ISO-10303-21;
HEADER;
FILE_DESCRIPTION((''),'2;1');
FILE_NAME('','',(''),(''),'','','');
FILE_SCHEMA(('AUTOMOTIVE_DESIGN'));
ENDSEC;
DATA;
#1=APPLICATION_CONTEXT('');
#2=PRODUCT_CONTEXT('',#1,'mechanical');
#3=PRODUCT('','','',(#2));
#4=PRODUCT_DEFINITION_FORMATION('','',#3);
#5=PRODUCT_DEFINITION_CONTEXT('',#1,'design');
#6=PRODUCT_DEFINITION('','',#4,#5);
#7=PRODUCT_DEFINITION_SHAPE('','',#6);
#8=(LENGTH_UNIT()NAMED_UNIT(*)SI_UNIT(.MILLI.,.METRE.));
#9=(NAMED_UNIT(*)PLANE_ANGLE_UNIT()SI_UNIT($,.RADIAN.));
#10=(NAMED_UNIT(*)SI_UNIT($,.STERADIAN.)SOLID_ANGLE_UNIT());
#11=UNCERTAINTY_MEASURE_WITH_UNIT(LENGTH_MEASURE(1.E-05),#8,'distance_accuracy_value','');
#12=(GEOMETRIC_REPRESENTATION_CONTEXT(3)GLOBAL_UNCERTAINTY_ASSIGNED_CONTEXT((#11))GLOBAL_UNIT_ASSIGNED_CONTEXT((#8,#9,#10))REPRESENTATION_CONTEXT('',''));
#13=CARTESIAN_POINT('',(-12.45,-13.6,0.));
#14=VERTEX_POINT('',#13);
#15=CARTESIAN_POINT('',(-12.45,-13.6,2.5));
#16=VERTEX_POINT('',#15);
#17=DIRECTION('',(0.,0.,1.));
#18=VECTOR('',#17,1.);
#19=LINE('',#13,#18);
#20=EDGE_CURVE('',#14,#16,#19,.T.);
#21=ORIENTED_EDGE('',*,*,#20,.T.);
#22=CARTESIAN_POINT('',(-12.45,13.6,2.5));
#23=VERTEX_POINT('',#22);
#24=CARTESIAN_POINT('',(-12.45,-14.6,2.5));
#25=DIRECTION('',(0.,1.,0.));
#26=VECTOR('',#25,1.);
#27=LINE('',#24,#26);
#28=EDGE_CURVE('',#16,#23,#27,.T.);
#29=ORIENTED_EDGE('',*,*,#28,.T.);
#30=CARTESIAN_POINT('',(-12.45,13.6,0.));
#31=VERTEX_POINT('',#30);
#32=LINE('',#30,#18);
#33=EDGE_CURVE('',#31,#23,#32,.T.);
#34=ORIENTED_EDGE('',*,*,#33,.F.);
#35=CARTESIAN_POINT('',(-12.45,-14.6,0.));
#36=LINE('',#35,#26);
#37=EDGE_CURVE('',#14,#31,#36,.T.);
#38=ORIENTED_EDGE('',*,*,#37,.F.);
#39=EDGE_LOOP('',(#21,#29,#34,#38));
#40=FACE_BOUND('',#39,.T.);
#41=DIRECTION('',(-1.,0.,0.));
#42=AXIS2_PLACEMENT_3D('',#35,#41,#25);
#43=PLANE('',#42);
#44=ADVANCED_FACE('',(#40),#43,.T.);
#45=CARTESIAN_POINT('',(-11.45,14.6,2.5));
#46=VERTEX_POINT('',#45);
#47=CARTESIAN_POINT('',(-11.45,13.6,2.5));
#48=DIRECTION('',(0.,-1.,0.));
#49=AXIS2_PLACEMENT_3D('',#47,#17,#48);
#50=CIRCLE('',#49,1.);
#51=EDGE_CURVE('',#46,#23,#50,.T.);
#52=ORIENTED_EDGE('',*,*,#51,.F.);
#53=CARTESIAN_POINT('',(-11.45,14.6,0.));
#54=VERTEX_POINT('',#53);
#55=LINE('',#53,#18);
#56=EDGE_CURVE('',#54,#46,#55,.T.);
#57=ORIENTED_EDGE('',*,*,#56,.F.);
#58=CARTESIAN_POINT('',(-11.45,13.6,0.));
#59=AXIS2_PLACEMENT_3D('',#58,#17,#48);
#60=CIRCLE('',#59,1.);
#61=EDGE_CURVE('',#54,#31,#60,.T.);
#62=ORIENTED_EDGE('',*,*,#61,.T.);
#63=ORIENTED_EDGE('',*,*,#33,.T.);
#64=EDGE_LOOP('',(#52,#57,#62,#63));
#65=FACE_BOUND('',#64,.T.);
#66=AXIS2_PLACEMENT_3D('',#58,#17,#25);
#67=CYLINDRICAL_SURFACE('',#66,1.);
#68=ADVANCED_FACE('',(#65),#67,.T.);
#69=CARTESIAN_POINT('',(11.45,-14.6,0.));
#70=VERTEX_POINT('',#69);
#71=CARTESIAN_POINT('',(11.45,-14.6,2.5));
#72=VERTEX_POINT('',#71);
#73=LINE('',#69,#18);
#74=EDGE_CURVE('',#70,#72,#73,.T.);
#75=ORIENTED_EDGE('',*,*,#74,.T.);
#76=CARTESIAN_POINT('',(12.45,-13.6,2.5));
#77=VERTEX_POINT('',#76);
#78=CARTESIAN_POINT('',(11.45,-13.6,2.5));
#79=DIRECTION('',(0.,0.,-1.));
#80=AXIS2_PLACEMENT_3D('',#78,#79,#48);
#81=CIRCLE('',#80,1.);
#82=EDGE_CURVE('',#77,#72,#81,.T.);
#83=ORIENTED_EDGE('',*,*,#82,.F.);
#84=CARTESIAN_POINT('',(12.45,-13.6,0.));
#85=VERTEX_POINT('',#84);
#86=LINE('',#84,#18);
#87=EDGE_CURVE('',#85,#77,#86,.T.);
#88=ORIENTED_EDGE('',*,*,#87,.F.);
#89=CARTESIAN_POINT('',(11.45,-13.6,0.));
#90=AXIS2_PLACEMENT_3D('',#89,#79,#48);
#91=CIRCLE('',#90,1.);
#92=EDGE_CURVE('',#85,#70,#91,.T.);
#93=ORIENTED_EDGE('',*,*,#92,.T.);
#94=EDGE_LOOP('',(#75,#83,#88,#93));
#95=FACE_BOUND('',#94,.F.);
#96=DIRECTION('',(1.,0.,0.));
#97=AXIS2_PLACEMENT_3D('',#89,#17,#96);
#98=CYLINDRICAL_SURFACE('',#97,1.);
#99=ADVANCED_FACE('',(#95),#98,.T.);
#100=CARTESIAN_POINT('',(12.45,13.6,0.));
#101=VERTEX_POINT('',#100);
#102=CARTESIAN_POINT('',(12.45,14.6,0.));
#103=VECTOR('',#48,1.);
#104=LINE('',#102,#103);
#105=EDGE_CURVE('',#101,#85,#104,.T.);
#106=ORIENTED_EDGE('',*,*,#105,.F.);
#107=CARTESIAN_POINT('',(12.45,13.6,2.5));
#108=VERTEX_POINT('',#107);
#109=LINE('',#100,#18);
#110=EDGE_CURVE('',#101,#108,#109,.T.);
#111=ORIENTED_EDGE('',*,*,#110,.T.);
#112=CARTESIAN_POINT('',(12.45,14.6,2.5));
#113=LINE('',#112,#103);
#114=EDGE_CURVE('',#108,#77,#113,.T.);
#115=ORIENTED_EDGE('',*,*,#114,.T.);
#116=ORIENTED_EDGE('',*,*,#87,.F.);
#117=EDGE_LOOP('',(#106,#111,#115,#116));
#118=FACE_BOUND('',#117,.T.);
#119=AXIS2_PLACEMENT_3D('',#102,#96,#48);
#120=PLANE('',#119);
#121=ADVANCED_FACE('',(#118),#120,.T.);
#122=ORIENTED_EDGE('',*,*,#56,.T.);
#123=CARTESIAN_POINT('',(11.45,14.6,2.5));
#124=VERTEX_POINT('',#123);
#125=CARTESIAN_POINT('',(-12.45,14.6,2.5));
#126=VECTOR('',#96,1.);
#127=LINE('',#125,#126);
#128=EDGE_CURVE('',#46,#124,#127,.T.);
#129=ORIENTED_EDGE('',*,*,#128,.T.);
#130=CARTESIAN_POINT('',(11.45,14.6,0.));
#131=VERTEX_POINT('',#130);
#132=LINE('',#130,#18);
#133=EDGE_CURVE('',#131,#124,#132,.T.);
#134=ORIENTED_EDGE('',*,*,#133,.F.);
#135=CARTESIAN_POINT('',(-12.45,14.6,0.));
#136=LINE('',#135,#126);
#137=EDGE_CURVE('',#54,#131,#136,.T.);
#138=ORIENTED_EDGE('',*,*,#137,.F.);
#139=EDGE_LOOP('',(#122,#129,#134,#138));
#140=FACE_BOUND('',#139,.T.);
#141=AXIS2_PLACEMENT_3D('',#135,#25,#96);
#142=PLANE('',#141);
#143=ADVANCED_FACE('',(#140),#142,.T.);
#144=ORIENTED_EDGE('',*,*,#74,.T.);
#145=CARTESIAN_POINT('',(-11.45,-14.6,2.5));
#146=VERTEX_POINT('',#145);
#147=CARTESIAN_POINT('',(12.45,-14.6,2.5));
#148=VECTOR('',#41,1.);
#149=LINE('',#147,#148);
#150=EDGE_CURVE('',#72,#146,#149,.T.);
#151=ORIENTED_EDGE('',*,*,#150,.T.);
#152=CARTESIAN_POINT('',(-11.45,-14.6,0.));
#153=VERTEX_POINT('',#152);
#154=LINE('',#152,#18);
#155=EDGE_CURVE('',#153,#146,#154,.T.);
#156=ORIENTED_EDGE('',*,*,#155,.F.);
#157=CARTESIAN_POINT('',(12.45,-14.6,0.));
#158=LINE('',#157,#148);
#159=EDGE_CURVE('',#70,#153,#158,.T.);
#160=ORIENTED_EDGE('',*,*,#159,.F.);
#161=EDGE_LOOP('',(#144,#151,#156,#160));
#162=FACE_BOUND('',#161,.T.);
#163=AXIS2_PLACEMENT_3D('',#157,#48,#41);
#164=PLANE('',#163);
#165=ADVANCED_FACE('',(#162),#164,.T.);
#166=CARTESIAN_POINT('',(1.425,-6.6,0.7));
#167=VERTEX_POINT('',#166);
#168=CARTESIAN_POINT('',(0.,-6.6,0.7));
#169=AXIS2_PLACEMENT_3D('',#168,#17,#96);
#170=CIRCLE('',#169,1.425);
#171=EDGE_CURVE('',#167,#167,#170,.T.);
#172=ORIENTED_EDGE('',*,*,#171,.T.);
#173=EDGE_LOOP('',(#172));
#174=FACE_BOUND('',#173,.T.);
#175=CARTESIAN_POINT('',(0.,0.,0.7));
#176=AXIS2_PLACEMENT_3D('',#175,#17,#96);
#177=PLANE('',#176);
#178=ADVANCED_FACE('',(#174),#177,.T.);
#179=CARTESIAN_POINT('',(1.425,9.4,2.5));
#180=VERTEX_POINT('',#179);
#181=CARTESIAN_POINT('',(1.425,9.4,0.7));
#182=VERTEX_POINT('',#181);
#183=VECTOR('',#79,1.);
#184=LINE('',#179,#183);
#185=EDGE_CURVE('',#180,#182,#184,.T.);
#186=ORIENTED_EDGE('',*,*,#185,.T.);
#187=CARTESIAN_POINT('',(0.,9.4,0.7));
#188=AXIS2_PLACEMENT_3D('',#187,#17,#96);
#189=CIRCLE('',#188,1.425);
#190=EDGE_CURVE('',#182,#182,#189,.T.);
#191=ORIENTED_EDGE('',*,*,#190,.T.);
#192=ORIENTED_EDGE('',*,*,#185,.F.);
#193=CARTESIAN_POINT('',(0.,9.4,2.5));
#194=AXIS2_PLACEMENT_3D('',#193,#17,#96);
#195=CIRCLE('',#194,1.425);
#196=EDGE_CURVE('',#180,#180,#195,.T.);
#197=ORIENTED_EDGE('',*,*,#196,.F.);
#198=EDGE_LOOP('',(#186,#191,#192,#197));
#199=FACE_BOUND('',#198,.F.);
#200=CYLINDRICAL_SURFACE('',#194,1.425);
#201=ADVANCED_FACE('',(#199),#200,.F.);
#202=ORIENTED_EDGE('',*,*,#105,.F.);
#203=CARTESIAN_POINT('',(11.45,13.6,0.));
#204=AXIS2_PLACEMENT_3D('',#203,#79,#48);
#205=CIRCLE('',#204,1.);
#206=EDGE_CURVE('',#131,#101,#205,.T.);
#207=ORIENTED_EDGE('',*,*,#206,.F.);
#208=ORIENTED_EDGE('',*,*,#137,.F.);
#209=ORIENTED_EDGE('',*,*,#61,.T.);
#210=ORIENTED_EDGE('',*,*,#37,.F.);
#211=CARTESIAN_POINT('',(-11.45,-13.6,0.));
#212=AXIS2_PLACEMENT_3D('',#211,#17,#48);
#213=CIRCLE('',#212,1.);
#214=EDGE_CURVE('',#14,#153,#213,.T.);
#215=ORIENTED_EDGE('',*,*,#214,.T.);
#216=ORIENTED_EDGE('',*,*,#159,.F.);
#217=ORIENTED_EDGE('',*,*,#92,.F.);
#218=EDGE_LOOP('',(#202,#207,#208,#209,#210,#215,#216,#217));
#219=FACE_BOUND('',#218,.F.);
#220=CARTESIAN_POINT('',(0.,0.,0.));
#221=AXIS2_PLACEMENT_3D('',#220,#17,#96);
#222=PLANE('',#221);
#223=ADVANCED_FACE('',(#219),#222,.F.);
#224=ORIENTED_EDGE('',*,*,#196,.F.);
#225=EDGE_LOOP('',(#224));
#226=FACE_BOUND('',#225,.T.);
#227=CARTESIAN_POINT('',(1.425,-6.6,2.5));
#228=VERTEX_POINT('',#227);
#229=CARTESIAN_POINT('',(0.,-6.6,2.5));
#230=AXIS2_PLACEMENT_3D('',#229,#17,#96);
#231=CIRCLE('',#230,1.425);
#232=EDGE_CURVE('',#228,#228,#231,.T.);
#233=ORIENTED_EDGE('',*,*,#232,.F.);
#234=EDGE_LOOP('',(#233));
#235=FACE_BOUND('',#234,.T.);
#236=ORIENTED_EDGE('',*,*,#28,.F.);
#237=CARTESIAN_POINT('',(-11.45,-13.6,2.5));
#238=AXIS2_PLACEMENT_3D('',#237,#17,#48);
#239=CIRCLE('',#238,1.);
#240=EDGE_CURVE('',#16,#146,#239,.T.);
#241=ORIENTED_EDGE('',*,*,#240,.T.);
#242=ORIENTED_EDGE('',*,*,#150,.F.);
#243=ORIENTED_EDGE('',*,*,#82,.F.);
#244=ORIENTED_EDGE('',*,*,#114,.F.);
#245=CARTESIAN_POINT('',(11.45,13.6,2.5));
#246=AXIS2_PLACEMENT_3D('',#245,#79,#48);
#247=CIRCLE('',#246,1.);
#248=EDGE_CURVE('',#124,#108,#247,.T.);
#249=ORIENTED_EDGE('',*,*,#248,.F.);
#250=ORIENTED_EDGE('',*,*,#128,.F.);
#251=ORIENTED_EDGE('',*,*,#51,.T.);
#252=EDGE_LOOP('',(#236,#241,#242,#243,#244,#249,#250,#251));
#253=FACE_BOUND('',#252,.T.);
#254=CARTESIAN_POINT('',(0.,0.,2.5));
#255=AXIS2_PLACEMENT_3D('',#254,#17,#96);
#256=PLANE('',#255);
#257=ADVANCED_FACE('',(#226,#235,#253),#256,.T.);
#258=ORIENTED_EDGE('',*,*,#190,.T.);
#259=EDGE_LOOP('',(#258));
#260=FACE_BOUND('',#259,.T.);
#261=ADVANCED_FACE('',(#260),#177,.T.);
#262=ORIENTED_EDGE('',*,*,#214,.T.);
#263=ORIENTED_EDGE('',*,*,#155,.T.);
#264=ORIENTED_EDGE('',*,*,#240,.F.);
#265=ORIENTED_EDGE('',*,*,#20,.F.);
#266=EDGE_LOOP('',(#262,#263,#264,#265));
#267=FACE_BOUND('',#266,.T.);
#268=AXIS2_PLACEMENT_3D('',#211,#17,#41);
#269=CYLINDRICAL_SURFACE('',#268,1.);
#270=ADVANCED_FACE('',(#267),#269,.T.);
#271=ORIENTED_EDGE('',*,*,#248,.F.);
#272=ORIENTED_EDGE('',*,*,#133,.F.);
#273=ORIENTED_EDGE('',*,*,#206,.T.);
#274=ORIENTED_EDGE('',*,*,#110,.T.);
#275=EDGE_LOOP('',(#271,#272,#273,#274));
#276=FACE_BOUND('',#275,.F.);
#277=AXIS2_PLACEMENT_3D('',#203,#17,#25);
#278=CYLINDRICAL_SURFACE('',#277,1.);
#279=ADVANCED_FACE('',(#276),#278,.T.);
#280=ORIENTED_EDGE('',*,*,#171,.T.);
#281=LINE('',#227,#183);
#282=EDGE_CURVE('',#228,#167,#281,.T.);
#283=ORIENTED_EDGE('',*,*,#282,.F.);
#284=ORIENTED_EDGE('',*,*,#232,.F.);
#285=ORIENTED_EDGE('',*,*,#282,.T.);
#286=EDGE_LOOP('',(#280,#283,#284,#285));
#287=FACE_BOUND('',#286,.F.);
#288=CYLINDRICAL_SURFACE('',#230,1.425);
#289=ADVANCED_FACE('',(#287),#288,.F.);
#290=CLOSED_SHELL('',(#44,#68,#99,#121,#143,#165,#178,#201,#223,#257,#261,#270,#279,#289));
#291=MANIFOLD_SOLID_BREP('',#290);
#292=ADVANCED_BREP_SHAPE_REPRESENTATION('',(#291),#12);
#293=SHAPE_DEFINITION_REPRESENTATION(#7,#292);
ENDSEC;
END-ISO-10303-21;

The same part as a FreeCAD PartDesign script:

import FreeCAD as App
import Part
import Sketcher
from FreeCAD import Vector
Q = App.Units.Quantity


def edges_at(feature, points):
    """Names of the edges that pass closest to the given points."""
    edges = feature.Shape.Edges
    near = lambda p: min(range(len(edges)), key=lambda i: edges[i].distToShape(Part.Vertex(*p))[0])
    return sorted({f"Edge{near(p) + 1}" for p in points})

doc = App.newDocument("Part")
body = doc.addObject("PartDesign::Body", "Body")

# Sketch on XY plane
sketch1 = body.newObject("Sketcher::SketchObject", "Sketch")
sketch1.AttachmentSupport = (doc.getObject("XY_Plane"), [""])
sketch1.MapMode = "FlatFace"
sketch1.addGeometry(Part.LineSegment(Vector(12, 15, 0), Vector(-12, 15, 0)), False)
sketch1.addGeometry(Part.LineSegment(Vector(-12, 15, 0), Vector(-12, -15, 0)), False)
sketch1.addGeometry(Part.LineSegment(Vector(-12, -15, 0), Vector(12, -15, 0)), False)
sketch1.addGeometry(Part.LineSegment(Vector(12, -15, 0), Vector(12, 15, 0)), False)
sketch1.addConstraint(Sketcher.Constraint("Coincident", 0, 2, 1, 1))
sketch1.addConstraint(Sketcher.Constraint("Coincident", 1, 2, 2, 1))
sketch1.addConstraint(Sketcher.Constraint("Coincident", 2, 2, 3, 1))
sketch1.addConstraint(Sketcher.Constraint("Coincident", 3, 2, 0, 1))
sketch1.addConstraint(Sketcher.Constraint("Horizontal", 0))
sketch1.addConstraint(Sketcher.Constraint("Vertical", 1))
sketch1.addConstraint(Sketcher.Constraint("Horizontal", 2))
sketch1.addConstraint(Sketcher.Constraint("Vertical", 3))
sketch1.addConstraint(Sketcher.Constraint("Symmetric", 0, 2, 2, 2, -1, 1))
sketch1.addConstraint(Sketcher.Constraint("DistanceX", 0, 2, 0, 1, Q("24.9 mm")))
sketch1.addConstraint(Sketcher.Constraint("DistanceY", 1, 2, 1, 1, Q("29.2 mm")))
pad1 = body.newObject("PartDesign::Pad", "Pad")
pad1.Profile = sketch1
pad1.Length = 2.5

# Sketch on XY plane
sketch2 = body.newObject("Sketcher::SketchObject", "Sketch001")
sketch2.AttachmentSupport = (doc.getObject("XY_Plane"), [""])
sketch2.MapMode = "FlatFace"
sketch2.AttachmentOffset = App.Placement(Vector(0, 0, 2.5), App.Rotation())
sketch2.addGeometry(Part.Circle(Vector(0, -6.6, 0), Vector(0, 0, 1), 1.4), False)
sketch2.addGeometry(Part.Circle(Vector(0, 9.4, 0), Vector(0, 0, 1), 1.4), False)
sketch2.addConstraint(Sketcher.Constraint("Equal", 0, 1))
sketch2.addConstraint(Sketcher.Constraint("PointOnObject", 0, 3, -2))
sketch2.addConstraint(Sketcher.Constraint("PointOnObject", 1, 3, -2))
sketch2.addConstraint(Sketcher.Constraint("Diameter", 0, Q("2.85 mm")))
sketch2.addConstraint(Sketcher.Constraint("DistanceY", 0, 3, 1, 3, Q("16 mm")))
sketch2.addConstraint(Sketcher.Constraint("DistanceY", 0, 3, -1, 1, Q("6.6 mm")))
pocket1 = body.newObject("PartDesign::Pocket", "Pocket")
pocket1.Profile = sketch2
pocket1.Length = 1.8
doc.recompute()

fillet = body.newObject("PartDesign::Fillet", "Fillet")
fillet.Base = (pocket1, edges_at(pocket1, [
    (-12.45, 14.6, 1.25),
    (12.45, 14.6, 1.25),
    (-12.45, -14.6, 1.25),
    (12.45, -14.6, 1.25),
]))
fillet.Radius = 1

doc.recompute()
